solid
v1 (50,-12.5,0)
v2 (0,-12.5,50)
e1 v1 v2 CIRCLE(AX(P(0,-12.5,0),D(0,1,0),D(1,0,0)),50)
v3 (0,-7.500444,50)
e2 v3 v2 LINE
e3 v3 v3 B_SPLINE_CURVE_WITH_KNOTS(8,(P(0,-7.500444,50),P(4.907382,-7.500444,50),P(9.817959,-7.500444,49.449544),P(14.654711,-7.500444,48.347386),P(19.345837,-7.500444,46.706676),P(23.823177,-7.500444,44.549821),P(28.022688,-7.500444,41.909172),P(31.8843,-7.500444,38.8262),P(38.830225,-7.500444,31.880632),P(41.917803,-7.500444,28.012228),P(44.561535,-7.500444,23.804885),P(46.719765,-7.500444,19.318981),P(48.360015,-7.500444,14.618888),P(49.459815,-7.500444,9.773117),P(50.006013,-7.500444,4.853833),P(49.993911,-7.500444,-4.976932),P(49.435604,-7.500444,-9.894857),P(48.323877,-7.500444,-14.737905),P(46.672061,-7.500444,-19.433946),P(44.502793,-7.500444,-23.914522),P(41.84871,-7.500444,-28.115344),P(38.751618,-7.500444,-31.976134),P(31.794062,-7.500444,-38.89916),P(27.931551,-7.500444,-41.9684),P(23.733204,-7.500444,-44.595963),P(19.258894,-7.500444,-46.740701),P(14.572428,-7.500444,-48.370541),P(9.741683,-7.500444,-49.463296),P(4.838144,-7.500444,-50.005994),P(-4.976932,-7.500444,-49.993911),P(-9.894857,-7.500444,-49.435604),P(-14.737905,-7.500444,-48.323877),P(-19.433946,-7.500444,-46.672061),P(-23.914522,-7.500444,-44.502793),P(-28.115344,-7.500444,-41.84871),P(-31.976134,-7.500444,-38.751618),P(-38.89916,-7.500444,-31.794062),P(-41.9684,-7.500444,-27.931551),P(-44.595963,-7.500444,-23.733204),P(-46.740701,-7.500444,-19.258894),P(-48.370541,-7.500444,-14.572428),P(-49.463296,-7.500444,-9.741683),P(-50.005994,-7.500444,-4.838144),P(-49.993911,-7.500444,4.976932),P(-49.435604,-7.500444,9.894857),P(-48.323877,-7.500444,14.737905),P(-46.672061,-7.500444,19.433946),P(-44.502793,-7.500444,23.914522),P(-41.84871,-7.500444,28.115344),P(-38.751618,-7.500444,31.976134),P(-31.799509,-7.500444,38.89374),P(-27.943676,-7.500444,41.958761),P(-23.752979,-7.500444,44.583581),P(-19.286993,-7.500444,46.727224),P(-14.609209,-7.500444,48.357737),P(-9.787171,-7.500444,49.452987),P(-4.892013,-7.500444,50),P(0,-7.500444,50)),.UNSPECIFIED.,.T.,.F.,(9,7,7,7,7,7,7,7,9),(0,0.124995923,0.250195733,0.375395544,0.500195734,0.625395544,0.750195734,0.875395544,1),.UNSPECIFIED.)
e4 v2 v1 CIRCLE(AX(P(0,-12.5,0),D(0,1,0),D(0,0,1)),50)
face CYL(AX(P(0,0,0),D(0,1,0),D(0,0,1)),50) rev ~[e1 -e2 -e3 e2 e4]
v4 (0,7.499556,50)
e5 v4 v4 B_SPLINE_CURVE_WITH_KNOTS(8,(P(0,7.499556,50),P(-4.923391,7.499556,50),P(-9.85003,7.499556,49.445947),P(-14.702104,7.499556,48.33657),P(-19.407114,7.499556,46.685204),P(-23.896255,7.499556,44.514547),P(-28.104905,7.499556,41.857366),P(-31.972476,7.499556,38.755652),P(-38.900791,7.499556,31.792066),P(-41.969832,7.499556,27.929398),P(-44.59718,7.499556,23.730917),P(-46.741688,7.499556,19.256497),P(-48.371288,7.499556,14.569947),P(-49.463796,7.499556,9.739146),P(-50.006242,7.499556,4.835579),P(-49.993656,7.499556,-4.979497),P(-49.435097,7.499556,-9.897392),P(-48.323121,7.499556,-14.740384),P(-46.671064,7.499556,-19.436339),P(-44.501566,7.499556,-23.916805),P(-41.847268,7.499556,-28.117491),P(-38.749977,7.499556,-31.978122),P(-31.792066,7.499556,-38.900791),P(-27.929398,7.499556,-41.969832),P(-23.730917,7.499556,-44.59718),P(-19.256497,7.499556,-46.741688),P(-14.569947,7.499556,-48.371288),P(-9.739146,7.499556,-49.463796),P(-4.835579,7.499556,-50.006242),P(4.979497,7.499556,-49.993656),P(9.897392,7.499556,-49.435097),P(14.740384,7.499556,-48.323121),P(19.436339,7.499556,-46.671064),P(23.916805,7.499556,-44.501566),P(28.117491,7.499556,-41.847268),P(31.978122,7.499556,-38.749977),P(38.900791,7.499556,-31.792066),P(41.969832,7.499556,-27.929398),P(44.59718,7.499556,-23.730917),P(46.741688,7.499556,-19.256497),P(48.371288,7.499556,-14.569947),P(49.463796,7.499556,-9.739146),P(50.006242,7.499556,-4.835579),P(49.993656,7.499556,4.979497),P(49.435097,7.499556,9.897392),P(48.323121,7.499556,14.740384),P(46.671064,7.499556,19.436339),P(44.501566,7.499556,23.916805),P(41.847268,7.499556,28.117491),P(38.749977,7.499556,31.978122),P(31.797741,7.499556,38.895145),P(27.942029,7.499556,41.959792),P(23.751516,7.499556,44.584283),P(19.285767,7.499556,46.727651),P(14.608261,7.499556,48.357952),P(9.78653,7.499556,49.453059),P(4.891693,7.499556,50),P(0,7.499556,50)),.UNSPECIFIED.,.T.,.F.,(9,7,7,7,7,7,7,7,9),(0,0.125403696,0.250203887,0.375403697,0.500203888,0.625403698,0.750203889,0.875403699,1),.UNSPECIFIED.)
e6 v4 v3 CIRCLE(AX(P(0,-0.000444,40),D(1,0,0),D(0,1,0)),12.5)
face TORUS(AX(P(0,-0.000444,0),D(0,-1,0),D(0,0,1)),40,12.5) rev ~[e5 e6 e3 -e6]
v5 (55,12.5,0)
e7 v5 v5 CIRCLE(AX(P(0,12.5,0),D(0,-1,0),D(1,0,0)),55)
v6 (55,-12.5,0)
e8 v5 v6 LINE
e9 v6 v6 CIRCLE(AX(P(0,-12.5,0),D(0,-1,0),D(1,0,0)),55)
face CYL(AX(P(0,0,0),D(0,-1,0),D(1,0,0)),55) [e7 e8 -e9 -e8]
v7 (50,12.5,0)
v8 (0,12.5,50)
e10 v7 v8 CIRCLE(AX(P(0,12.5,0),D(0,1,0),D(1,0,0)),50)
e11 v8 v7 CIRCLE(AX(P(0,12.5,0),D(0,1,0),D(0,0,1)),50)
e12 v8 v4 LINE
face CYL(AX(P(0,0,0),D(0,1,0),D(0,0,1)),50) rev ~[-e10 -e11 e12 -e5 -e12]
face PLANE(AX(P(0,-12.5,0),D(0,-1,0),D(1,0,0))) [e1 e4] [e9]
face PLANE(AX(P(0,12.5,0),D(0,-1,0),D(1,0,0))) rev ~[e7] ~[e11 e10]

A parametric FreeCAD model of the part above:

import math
import FreeCAD as App
import Part
import Sketcher

V = App.Vector

doc = App.newDocument("Part")
body = doc.addObject("PartDesign::Body", "Body")

# Sketch on XZ plane
sketch1 = doc.addObject("Sketcher::SketchObject", "Sketch")
body.addObject(sketch1)
sketch1.AttachmentSupport = (doc.XZ_Plane, [""])
sketch1.MapMode = "FlatFace"
sketch1.addGeometry(Part.Circle(V(0, 0, 0), V(0, 0, 1), 55), False)
sketch1.addGeometry(Part.ArcOfCircle(Part.Circle(V(0, 0, 0), V(0, 0, 1), 50), math.radians(90), math.radians(360)), False)
sketch1.addGeometry(Part.ArcOfCircle(Part.Circle(V(0, 0, 0), V(0, 0, 1), 50), math.radians(0), math.radians(90)), False)
sketch1.addConstraint(Sketcher.Constraint("Tangent", 1, 1, 2, 2))
sketch1.addConstraint(Sketcher.Constraint("Coincident", 2, 1, 1, 2))
sketch1.addConstraint(Sketcher.Constraint("Coincident", 0, 3, -1, 1))
sketch1.addConstraint(Sketcher.Constraint("Coincident", 1, 3, -1, 1))
sketch1.addConstraint(Sketcher.Constraint("PointOnObject", 1, 1, -2))
sketch1.addConstraint(Sketcher.Constraint("PointOnObject", 2, 1, -1))
sketch1.addConstraint(Sketcher.Constraint("Diameter", 0, 110.0))
sketch1.addConstraint(Sketcher.Constraint("Radius", 1, 50.0))
pad1 = doc.addObject("PartDesign::Pad", "Pad")
body.addObject(pad1)
pad1.Profile = sketch1
pad1.Length = 25
pad1.Midplane = True

# Sketch on YZ plane
sketch2 = doc.addObject("Sketcher::SketchObject", "Sketch001")
body.addObject(sketch2)
sketch2.AttachmentSupport = (doc.YZ_Plane, [""])
sketch2.MapMode = "FlatFace"
sketch2.addGeometry(Part.LineSegment(V(-13, 40, 0), V(12, 40, 0)), False)
sketch2.addGeometry(Part.ArcOfCircle(Part.Circle(V(0, 40, 0), V(0, 0, 1), 12), math.radians(0), math.radians(180)), False)
sketch2.addConstraint(Sketcher.Constraint("Coincident", 0, 1, 1, 2))
sketch2.addConstraint(Sketcher.Constraint("Coincident", 1, 1, 0, 2))
sketch2.addConstraint(Sketcher.Constraint("Horizontal", 0))
sketch2.addConstraint(Sketcher.Constraint("Horizontal", 1, 3, 0, 1))
sketch2.addConstraint(Sketcher.Constraint("Radius", 1, 12.5))
sketch2.addConstraint(Sketcher.Constraint("DistanceY", -1, 1, 1, 3, 40.0))
sketch2.addConstraint(Sketcher.Constraint("DistanceX", 1, 3, -1, 1, 0.000444))
groove = doc.addObject("PartDesign::Groove", "Groove")
body.addObject(groove)
groove.Profile = sketch2
groove.ReferenceAxis = (sketch2, ["H_Axis"])
groove.Angle = 360

doc.recompute()
